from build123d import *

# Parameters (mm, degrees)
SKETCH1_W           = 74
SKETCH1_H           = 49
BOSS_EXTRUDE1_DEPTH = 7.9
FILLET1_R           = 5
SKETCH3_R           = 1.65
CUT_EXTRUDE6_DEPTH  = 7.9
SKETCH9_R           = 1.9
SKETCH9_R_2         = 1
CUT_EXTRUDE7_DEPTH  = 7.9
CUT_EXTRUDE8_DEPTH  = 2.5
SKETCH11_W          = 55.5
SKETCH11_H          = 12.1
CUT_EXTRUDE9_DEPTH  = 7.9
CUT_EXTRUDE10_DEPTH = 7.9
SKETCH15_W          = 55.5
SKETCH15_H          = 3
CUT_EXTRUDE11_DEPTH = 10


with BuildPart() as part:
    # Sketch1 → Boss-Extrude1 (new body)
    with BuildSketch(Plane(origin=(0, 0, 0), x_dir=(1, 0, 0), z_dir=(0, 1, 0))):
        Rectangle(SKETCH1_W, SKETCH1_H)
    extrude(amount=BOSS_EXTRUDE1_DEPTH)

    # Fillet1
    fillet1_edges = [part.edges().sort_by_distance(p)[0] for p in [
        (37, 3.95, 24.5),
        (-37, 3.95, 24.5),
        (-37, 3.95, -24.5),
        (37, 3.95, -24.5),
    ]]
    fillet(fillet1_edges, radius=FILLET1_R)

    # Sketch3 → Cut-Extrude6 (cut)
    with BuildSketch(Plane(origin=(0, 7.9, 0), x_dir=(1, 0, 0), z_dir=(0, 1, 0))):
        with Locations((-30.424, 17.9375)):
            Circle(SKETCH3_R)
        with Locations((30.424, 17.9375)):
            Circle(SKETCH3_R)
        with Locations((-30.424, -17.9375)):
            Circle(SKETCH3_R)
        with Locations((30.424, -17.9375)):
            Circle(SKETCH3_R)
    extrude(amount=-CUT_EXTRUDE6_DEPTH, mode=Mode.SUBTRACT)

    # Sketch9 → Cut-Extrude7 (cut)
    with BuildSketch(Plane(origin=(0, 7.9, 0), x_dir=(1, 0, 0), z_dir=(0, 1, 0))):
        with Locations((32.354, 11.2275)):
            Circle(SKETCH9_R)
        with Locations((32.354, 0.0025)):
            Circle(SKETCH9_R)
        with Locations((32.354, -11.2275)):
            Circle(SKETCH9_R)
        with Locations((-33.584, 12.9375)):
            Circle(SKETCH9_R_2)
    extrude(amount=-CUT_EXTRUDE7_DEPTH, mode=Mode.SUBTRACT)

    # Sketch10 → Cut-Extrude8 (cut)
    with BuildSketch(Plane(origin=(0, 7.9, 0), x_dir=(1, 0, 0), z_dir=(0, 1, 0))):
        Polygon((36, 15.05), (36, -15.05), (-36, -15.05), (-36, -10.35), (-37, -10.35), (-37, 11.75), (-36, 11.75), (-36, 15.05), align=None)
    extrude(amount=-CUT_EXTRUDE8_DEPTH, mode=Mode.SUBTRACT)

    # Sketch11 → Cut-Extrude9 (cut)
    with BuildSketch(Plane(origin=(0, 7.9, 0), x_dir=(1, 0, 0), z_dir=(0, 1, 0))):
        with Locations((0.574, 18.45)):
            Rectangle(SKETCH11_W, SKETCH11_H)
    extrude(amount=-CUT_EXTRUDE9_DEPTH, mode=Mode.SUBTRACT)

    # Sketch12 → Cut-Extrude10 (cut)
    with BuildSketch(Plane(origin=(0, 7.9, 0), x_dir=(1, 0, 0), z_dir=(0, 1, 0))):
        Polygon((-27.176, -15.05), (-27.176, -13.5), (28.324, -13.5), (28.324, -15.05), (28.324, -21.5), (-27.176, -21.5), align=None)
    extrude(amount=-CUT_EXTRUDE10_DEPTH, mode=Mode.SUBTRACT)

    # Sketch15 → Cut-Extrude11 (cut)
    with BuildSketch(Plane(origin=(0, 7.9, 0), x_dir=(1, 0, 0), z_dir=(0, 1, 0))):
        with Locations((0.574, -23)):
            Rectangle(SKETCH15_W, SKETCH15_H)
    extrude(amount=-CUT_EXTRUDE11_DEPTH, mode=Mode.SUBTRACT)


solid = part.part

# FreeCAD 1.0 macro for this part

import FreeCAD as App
import Part
import Sketcher
from FreeCAD import Vector


def edges_at(feature, points):
    """Names of the edges that pass closest to the given points."""
    edges = feature.Shape.Edges
    near = lambda p: min(range(len(edges)), key=lambda i: edges[i].distToShape(Part.Vertex(*p))[0])
    return sorted({f"Edge{near(p) + 1}" for p in points})

doc = App.newDocument("Part")
body = doc.addObject("PartDesign::Body", "Body")

# Sketch on XZ plane
sketch1 = body.newObject("Sketcher::SketchObject", "Sketch")
sketch1.AttachmentSupport = (doc.getObject("XZ_Plane"), [""])
sketch1.MapMode = "FlatFace"
sketch1.addGeometry(Part.LineSegment(Vector(-37, -24.5, 0), Vector(-37, 24.5, 0)), False)
sketch1.addGeometry(Part.LineSegment(Vector(-37, 24.5, 0), Vector(37, 24.5, 0)), False)
sketch1.addGeometry(Part.LineSegment(Vector(37, 24.5, 0), Vector(37, -24.5, 0)), False)
sketch1.addGeometry(Part.LineSegment(Vector(37, -24.5, 0), Vector(-37, -24.5, 0)), False)
sketch1.addConstraint(Sketcher.Constraint("Coincident", 0, 2, 1, 1))
sketch1.addConstraint(Sketcher.Constraint("Coincident", 1, 2, 2, 1))
sketch1.addConstraint(Sketcher.Constraint("Coincident", 2, 2, 3, 1))
sketch1.addConstraint(Sketcher.Constraint("Coincident", 3, 2, 0, 1))
sketch1.addConstraint(Sketcher.Constraint("Vertical", 0))
sketch1.addConstraint(Sketcher.Constraint("Horizontal", 1))
sketch1.addConstraint(Sketcher.Constraint("Vertical", 2))
sketch1.addConstraint(Sketcher.Constraint("Horizontal", 3))
sketch1.addConstraint(Sketcher.Constraint("Symmetric", 0, 2, 2, 2, -1, 1))
sketch1.addConstraint(Sketcher.Constraint("DistanceX", 1, 1, 1, 2, 74.0))
sketch1.addConstraint(Sketcher.Constraint("DistanceY", 0, 1, 0, 2, 49.0))
pad1 = body.newObject("PartDesign::Pad", "Pad")
pad1.Profile = sketch1
pad1.Length = 7.9
pad1.Reversed = True
doc.recompute()

fillet = body.newObject("PartDesign::Fillet", "Fillet")
fillet.Base = (pad1, edges_at(pad1, [
    (37, 3.95, 24.5),
    (-37, 3.95, 24.5),
    (-37, 3.95, -24.5),
    (37, 3.95, -24.5),
]))
fillet.Radius = 5

# Sketch on XZ plane
sketch2 = body.newObject("Sketcher::SketchObject", "Sketch001")
sketch2.AttachmentSupport = (doc.getObject("XZ_Plane"), [""])
sketch2.MapMode = "FlatFace"
sketch2.AttachmentOffset = App.Placement(Vector(0, 0, -7.9), App.Rotation())
sketch2.addGeometry(Part.Circle(Vector(-30.424, -17.9375, 0), Vector(0, 0, 1), 1.65), False)
sketch2.addGeometry(Part.Circle(Vector(30.424, -17.9375, 0), Vector(0, 0, 1), 1.65), False)
sketch2.addGeometry(Part.Circle(Vector(-30.424, 17.9375, 0), Vector(0, 0, 1), 1.65), False)
sketch2.addGeometry(Part.Circle(Vector(30.424, 17.9375, 0), Vector(0, 0, 1), 1.65), False)
sketch2.addConstraint(Sketcher.Constraint("Equal", 0, 1))
sketch2.addConstraint(Sketcher.Constraint("Equal", 1, 2))
sketch2.addConstraint(Sketcher.Constraint("Equal", 2, 3))
sketch2.addConstraint(Sketcher.Constraint("Symmetric", 1, 3, 2, 3, -1, 1))
sketch2.addConstraint(Sketcher.Constraint("Symmetric", 0, 3, 3, 3, -1, 1))
sketch2.addConstraint(Sketcher.Constraint("Symmetric", 0, 3, 1, 3, -2))
sketch2.addConstraint(Sketcher.Constraint("Diameter", 0, 3.3))
sketch2.addConstraint(Sketcher.Constraint("DistanceX", 0, 3, -1, 1, 30.424))
sketch2.addConstraint(Sketcher.Constraint("DistanceY", 0, 3, 2, 3, 35.875))
pocket1 = body.newObject("PartDesign::Pocket", "Pocket")
pocket1.Profile = sketch2
pocket1.Length = 7.9
pocket1.Reversed = True

# Sketch on XZ plane
sketch3 = body.newObject("Sketcher::SketchObject", "Sketch002")
sketch3.AttachmentSupport = (doc.getObject("XZ_Plane"), [""])
sketch3.MapMode = "FlatFace"
sketch3.AttachmentOffset = App.Placement(Vector(0, 0, -7.9), App.Rotation())
sketch3.addGeometry(Part.Circle(Vector(32.354, -11.2275, 0), Vector(0, 0, 1), 1.9), False)
sketch3.addGeometry(Part.Circle(Vector(32.354, -0.0025, 0), Vector(0, 0, 1), 1.9), False)
sketch3.addGeometry(Part.Circle(Vector(32.354, 11.2275, 0), Vector(0, 0, 1), 1.9), False)
sketch3.addGeometry(Part.Circle(Vector(-33.584, -12.9375, 0), Vector(0, 0, 1), 1), False)
sketch3.addConstraint(Sketcher.Constraint("Equal", 0, 1))
sketch3.addConstraint(Sketcher.Constraint("Equal", 1, 2))
sketch3.addConstraint(Sketcher.Constraint("Symmetric", 0, 3, 2, 3, -1))
sketch3.addConstraint(Sketcher.Constraint("Vertical", 0, 3, 1, 3))
sketch3.addConstraint(Sketcher.Constraint("Diameter", 3, 2.0))
sketch3.addConstraint(Sketcher.Constraint("Diameter", 0, 3.8))
sketch3.addConstraint(Sketcher.Constraint("DistanceY", 1, 3, 2, 3, 11.23))
sketch3.addConstraint(Sketcher.Constraint("DistanceY", 3, 3, 0, 3, 1.71))
sketch3.addConstraint(Sketcher.Constraint("DistanceX", -1, 1, 0, 3, 32.354))
sketch3.addConstraint(Sketcher.Constraint("DistanceX", 3, 3, -1, 1, 33.584))
sketch3.addConstraint(Sketcher.Constraint("DistanceY", 0, 3, 1, 3, 11.225))
pocket2 = body.newObject("PartDesign::Pocket", "Pocket001")
pocket2.Profile = sketch3
pocket2.Length = 7.9
pocket2.Reversed = True

# Sketch on XZ plane
sketch4 = body.newObject("Sketcher::SketchObject", "Sketch003")
sketch4.AttachmentSupport = (doc.getObject("XZ_Plane"), [""])
sketch4.MapMode = "FlatFace"
sketch4.AttachmentOffset = App.Placement(Vector(0, 0, -7.9), App.Rotation())
sketch4.addGeometry(Part.LineSegment(Vector(36, 15.05, 0), Vector(36, -15.05, 0)), False)
sketch4.addGeometry(Part.LineSegment(Vector(36, -15.05, 0), Vector(-36, -15.05, 0)), False)
sketch4.addGeometry(Part.LineSegment(Vector(-36, -15.05, 0), Vector(-36, -11.75, 0)), False)
sketch4.addGeometry(Part.LineSegment(Vector(-36, -11.75, 0), Vector(-37, -11.75, 0)), False)
sketch4.addGeometry(Part.LineSegment(Vector(-37, -11.75, 0), Vector(-37, 10.35, 0)), False)
sketch4.addGeometry(Part.LineSegment(Vector(-37, 10.35, 0), Vector(-36, 10.35, 0)), False)
sketch4.addGeometry(Part.LineSegment(Vector(-36, 10.35, 0), Vector(-36, 15.05, 0)), False)
sketch4.addGeometry(Part.LineSegment(Vector(-36, 15.05, 0), Vector(36, 15.05, 0)), False)
sketch4.addConstraint(Sketcher.Constraint("Coincident", 0, 2, 1, 1))
sketch4.addConstraint(Sketcher.Constraint("Coincident", 1, 2, 2, 1))
sketch4.addConstraint(Sketcher.Constraint("Coincident", 2, 2, 3, 1))
sketch4.addConstraint(Sketcher.Constraint("Coincident", 3, 2, 4, 1))
sketch4.addConstraint(Sketcher.Constraint("Coincident", 4, 2, 5, 1))
sketch4.addConstraint(Sketcher.Constraint("Coincident", 5, 2, 6, 1))
sketch4.addConstraint(Sketcher.Constraint("Coincident", 6, 2, 7, 1))
sketch4.addConstraint(Sketcher.Constraint("Coincident", 7, 2, 0, 1))
sketch4.addConstraint(Sketcher.Constraint("Vertical", 0))
sketch4.addConstraint(Sketcher.Constraint("Horizontal", 1))
sketch4.addConstraint(Sketcher.Constraint("Vertical", 2))
sketch4.addConstraint(Sketcher.Constraint("Horizontal", 3))
sketch4.addConstraint(Sketcher.Constraint("Vertical", 4))
sketch4.addConstraint(Sketcher.Constraint("Horizontal", 5))
sketch4.addConstraint(Sketcher.Constraint("Vertical", 6))
sketch4.addConstraint(Sketcher.Constraint("Horizontal", 7))
sketch4.addConstraint(Sketcher.Constraint("Symmetric", 0, 2, 6, 2, -1, 1))
sketch4.addConstraint(Sketcher.Constraint("Vertical", 2, 2, 5, 2))
sketch4.addConstraint(Sketcher.Constraint("DistanceX", 1, 2, 1, 1, 72.0))
sketch4.addConstraint(Sketcher.Constraint("DistanceX", 3, 2, 3, 1, 1.0))
sketch4.addConstraint(Sketcher.Constraint("DistanceY", 0, 2, 0, 1, 30.1))
sketch4.addConstraint(Sketcher.Constraint("DistanceY", 2, 1, 2, 2, 3.3))
sketch4.addConstraint(Sketcher.Constraint("DistanceY", 4, 1, 4, 2, 22.1))
pocket3 = body.newObject("PartDesign::Pocket", "Pocket002")
pocket3.Profile = sketch4
pocket3.Length = 2.5
pocket3.Reversed = True

# Sketch on XZ plane
sketch5 = body.newObject("Sketcher::SketchObject", "Sketch004")
sketch5.AttachmentSupport = (doc.getObject("XZ_Plane"), [""])
sketch5.MapMode = "FlatFace"
sketch5.AttachmentOffset = App.Placement(Vector(0, 0, -7.9), App.Rotation())
sketch5.addGeometry(Part.LineSegment(Vector(-27.176, -24.5, 0), Vector(-27.176, -12.4, 0)), False)
sketch5.addGeometry(Part.LineSegment(Vector(-27.176, -12.4, 0), Vector(28.324, -12.4, 0)), False)
sketch5.addGeometry(Part.LineSegment(Vector(28.324, -12.4, 0), Vector(28.324, -24.5, 0)), False)
sketch5.addGeometry(Part.LineSegment(Vector(28.324, -24.5, 0), Vector(-27.176, -24.5, 0)), False)
sketch5.addConstraint(Sketcher.Constraint("Coincident", 0, 2, 1, 1))
sketch5.addConstraint(Sketcher.Constraint("Coincident", 1, 2, 2, 1))
sketch5.addConstraint(Sketcher.Constraint("Coincident", 2, 2, 3, 1))
sketch5.addConstraint(Sketcher.Constraint("Coincident", 3, 2, 0, 1))
sketch5.addConstraint(Sketcher.Constraint("Vertical", 0))
sketch5.addConstraint(Sketcher.Constraint("Horizontal", 1))
sketch5.addConstraint(Sketcher.Constraint("Vertical", 2))
sketch5.addConstraint(Sketcher.Constraint("Horizontal", 3))
sketch5.addConstraint(Sketcher.Constraint("DistanceX", 1, 1, 1, 2, 55.5))
sketch5.addConstraint(Sketcher.Constraint("DistanceY", 0, 1, 0, 2, 12.1))
sketch5.addConstraint(Sketcher.Constraint("DistanceY", 0, 2, -1, 1, 12.4))
sketch5.addConstraint(Sketcher.Constraint("DistanceX", 0, 2, -1, 1, 27.176))
pocket4 = body.newObject("PartDesign::Pocket", "Pocket003")
pocket4.Profile = sketch5
pocket4.Length = 7.9
pocket4.Reversed = True

# Sketch on XZ plane
sketch6 = body.newObject("Sketcher::SketchObject", "Sketch005")
sketch6.AttachmentSupport = (doc.getObject("XZ_Plane"), [""])
sketch6.MapMode = "FlatFace"
sketch6.AttachmentOffset = App.Placement(Vector(0, 0, -7.9), App.Rotation())
sketch6.addGeometry(Part.LineSegment(Vector(-27.176, 13.5, 0), Vector(-27.176, 21.5, 0)), False)
sketch6.addGeometry(Part.LineSegment(Vector(-27.176, 21.5, 0), Vector(28.324, 21.5, 0)), False)
sketch6.addGeometry(Part.LineSegment(Vector(28.324, 21.5, 0), Vector(28.324, 13.5, 0)), False)
sketch6.addGeometry(Part.LineSegment(Vector(28.324, 13.5, 0), Vector(-27.176, 13.5, 0)), False)
sketch6.addConstraint(Sketcher.Constraint("Coincident", 0, 2, 1, 1))
sketch6.addConstraint(Sketcher.Constraint("Coincident", 1, 2, 2, 1))
sketch6.addConstraint(Sketcher.Constraint("Coincident", 2, 2, 3, 1))
sketch6.addConstraint(Sketcher.Constraint("Coincident", 3, 2, 0, 1))
sketch6.addConstraint(Sketcher.Constraint("Vertical", 0))
sketch6.addConstraint(Sketcher.Constraint("Horizontal", 1))
sketch6.addConstraint(Sketcher.Constraint("Vertical", 2))
sketch6.addConstraint(Sketcher.Constraint("Horizontal", 3))
sketch6.addConstraint(Sketcher.Constraint("DistanceY", 0, 1, 0, 2, 8.0))
sketch6.addConstraint(Sketcher.Constraint("DistanceX", 1, 1, 1, 2, 55.5))
sketch6.addConstraint(Sketcher.Constraint("DistanceY", -1, 1, 0, 2, 21.5))
sketch6.addConstraint(Sketcher.Constraint("DistanceX", 0, 2, -1, 1, 27.176))
pocket5 = body.newObject("PartDesign::Pocket", "Pocket004")
pocket5.Profile = sketch6
pocket5.Length = 7.9
pocket5.Reversed = True

# Sketch on XZ plane
sketch7 = body.newObject("Sketcher::SketchObject", "Sketch006")
sketch7.AttachmentSupport = (doc.getObject("XZ_Plane"), [""])
sketch7.MapMode = "FlatFace"
sketch7.AttachmentOffset = App.Placement(Vector(0, 0, -7.9), App.Rotation())
sketch7.addGeometry(Part.LineSegment(Vector(-27.176, 21.5, 0), Vector(-27.176, 24.5, 0)), False)
sketch7.addGeometry(Part.LineSegment(Vector(-27.176, 24.5, 0), Vector(28.324, 24.5, 0)), False)
sketch7.addGeometry(Part.LineSegment(Vector(28.324, 24.5, 0), Vector(28.324, 21.5, 0)), False)
sketch7.addGeometry(Part.LineSegment(Vector(28.324, 21.5, 0), Vector(-27.176, 21.5, 0)), False)
sketch7.addConstraint(Sketcher.Constraint("Coincident", 0, 2, 1, 1))
sketch7.addConstraint(Sketcher.Constraint("Coincident", 1, 2, 2, 1))
sketch7.addConstraint(Sketcher.Constraint("Coincident", 2, 2, 3, 1))
sketch7.addConstraint(Sketcher.Constraint("Coincident", 3, 2, 0, 1))
sketch7.addConstraint(Sketcher.Constraint("Vertical", 0))
sketch7.addConstraint(Sketcher.Constraint("Horizontal", 1))
sketch7.addConstraint(Sketcher.Constraint("Vertical", 2))
sketch7.addConstraint(Sketcher.Constraint("Horizontal", 3))
sketch7.addConstraint(Sketcher.Constraint("DistanceY", 0, 1, 0, 2, 3.0))
sketch7.addConstraint(Sketcher.Constraint("DistanceX", 1, 1, 1, 2, 55.5))
sketch7.addConstraint(Sketcher.Constraint("DistanceY", -1, 1, 0, 2, 24.5))
sketch7.addConstraint(Sketcher.Constraint("DistanceX", 0, 2, -1, 1, 27.176))
pocket6 = body.newObject("PartDesign::Pocket", "Pocket005")
pocket6.Profile = sketch7
pocket6.Length = 10
pocket6.Reversed = True

doc.recompute()
